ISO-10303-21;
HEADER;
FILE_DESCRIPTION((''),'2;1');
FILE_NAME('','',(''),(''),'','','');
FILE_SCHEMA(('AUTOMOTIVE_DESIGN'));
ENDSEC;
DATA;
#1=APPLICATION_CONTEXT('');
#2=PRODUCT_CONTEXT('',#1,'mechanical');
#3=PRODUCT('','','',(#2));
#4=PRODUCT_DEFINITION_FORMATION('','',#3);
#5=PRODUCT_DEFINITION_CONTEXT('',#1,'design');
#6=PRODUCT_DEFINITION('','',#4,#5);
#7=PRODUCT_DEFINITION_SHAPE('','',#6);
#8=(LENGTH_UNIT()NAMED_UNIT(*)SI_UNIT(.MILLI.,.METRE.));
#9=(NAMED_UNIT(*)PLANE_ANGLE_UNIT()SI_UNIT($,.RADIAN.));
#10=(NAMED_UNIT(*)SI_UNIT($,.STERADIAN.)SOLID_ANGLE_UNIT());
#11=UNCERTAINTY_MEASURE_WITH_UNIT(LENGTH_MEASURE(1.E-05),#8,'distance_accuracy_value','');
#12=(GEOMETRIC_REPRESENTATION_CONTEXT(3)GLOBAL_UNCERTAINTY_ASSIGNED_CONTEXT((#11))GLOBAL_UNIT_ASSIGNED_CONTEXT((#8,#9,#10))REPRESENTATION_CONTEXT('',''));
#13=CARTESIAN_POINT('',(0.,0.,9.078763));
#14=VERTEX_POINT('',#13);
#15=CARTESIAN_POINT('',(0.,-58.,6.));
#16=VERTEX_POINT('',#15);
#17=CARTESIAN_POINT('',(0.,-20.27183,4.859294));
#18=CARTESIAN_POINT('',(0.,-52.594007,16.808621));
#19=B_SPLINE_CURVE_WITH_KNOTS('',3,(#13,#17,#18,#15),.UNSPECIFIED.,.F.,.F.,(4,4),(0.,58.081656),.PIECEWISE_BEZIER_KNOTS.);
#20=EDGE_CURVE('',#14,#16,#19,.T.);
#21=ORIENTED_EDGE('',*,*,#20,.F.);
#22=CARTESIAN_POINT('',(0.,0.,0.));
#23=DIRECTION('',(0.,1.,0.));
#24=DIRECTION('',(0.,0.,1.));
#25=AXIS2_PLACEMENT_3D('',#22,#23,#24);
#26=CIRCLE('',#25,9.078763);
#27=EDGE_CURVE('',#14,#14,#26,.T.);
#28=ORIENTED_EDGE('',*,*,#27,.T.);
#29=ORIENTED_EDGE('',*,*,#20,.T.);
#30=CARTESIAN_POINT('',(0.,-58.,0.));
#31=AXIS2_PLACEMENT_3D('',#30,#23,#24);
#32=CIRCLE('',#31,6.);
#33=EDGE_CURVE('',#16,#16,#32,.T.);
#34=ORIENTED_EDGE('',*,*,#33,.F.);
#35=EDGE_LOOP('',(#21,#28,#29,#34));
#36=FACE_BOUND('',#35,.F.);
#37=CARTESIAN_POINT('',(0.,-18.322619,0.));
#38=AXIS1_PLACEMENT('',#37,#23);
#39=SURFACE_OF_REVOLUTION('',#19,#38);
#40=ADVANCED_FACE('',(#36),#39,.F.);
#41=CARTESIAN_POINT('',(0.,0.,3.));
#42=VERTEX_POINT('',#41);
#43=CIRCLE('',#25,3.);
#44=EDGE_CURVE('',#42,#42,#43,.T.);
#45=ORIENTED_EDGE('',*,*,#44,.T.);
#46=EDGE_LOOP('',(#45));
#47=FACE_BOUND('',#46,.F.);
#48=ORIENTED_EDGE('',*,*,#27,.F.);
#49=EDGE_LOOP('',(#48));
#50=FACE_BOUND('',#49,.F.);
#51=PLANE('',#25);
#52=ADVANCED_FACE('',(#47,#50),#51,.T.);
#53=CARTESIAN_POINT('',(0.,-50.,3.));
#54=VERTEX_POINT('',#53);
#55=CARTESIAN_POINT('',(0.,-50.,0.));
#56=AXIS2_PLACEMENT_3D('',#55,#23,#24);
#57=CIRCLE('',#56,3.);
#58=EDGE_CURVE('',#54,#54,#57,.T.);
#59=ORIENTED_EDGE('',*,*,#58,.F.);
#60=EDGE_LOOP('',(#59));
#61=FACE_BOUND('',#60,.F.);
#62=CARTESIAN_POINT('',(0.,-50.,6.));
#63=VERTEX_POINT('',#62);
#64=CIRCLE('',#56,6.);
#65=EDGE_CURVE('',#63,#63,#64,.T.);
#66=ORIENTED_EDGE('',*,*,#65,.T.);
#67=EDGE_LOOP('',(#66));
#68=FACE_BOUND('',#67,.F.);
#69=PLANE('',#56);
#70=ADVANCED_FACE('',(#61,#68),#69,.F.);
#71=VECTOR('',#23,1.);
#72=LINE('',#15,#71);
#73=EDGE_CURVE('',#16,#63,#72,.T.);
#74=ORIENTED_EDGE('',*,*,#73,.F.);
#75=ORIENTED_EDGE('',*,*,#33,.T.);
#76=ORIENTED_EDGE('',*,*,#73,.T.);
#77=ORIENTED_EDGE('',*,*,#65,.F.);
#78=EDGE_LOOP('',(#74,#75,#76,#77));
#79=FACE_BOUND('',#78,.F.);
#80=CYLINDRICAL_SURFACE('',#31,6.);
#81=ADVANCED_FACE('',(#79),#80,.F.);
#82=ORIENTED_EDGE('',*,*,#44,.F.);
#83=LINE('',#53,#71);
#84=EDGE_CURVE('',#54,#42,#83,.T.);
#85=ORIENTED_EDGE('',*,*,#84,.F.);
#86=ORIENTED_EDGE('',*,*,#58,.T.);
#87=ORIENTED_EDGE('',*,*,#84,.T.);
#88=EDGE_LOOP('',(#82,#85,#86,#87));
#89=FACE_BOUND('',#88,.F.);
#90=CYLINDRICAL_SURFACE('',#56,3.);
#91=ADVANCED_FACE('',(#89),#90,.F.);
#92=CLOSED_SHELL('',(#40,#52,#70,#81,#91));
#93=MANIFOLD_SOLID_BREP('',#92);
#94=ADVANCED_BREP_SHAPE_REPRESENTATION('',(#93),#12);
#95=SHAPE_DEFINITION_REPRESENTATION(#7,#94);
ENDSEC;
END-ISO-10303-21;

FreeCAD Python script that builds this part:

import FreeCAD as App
import Part
import Sketcher
from FreeCAD import Vector

doc = App.newDocument("Part")
body = doc.addObject("PartDesign::Body", "Body")

# Sketch on YZ plane
sketch1 = body.newObject("Sketcher::SketchObject", "Sketch")
sketch1.AttachmentSupport = (doc.getObject("YZ_Plane"), [""])
sketch1.MapMode = "FlatFace"
sketch1.addGeometry([
    Part.LineSegment(Vector(-50, 3, 0), Vector(0, 3, 0)),  # 0
    Part.LineSegment(Vector(0, 3, 0), Vector(0, 9.078763, 0)),  # 1
    Part.BSplineCurve([Vector(0, 9.078763, 0), Vector(-20.27183, 4.859294, 0), Vector(-52.594007, 16.808621, 0), Vector(-58, 6, 0)], [4, 4], [0, 58.081656], False, 3, [1, 1, 1, 1], False),  # 2
    Part.LineSegment(Vector(-58, 6, 0), Vector(-50, 6, 0)),  # 3
    Part.LineSegment(Vector(-50, 6, 0), Vector(-50, 3, 0)),  # 4
], False)
sketch1.addConstraint([
    Sketcher.Constraint("Block", 2),
    Sketcher.Constraint("Coincident", 0, 2, 1, 1),
    Sketcher.Constraint("Coincident", 1, 2, 2, 1),
    Sketcher.Constraint("Coincident", 2, 2, 3, 1),
    Sketcher.Constraint("Coincident", 3, 2, 4, 1),
    Sketcher.Constraint("Coincident", 4, 2, 0, 1),
    Sketcher.Constraint("Horizontal", 0),
    Sketcher.Constraint("Vertical", 1),
    Sketcher.Constraint("Horizontal", 3),
    Sketcher.Constraint("Vertical", 4),
    Sketcher.Constraint("DistanceX", 0, 1, 0, 2, 50.0),
    Sketcher.Constraint("DistanceY", 4, 2, 4, 1, 3.0),
])
revolution = body.newObject("PartDesign::Revolution", "Revolution")
revolution.Profile = sketch1
revolution.ReferenceAxis = (sketch1, ["H_Axis"])
revolution.Angle = 360

doc.recompute()
